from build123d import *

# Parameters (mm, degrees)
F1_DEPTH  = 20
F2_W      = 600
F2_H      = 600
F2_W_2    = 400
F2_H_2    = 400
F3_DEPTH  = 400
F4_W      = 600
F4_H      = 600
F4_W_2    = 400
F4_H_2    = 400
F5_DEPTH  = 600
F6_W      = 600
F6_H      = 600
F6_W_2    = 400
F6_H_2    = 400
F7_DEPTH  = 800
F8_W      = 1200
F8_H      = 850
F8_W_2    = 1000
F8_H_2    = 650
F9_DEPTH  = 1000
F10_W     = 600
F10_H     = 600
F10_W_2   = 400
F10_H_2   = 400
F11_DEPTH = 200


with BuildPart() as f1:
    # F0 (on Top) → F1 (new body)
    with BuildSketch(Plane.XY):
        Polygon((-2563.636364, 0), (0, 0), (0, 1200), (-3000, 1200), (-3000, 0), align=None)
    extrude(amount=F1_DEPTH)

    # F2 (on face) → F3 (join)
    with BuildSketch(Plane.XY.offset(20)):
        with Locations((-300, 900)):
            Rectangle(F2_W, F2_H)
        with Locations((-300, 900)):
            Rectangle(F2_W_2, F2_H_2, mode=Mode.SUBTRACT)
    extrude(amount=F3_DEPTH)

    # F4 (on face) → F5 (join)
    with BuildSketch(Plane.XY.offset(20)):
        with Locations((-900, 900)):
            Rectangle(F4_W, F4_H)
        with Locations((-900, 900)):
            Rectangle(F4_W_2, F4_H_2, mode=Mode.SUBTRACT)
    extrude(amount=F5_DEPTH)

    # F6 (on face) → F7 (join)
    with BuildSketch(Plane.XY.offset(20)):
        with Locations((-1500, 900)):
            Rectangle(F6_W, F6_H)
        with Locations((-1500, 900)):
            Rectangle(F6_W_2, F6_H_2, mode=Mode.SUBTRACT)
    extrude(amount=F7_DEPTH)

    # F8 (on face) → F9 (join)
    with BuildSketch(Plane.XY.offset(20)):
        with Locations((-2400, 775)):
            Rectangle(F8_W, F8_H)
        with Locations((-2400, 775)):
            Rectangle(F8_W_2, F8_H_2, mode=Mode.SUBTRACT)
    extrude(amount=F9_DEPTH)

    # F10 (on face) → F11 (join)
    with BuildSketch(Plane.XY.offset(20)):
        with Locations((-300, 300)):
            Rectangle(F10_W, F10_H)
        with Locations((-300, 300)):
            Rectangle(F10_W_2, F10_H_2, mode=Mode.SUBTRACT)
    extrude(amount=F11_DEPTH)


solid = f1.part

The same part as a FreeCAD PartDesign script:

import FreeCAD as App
import Part
import Sketcher
from FreeCAD import Vector
Q = App.Units.Quantity


def add_polygon(sketch, points):
    """Adds a closed chain of lines whose ends are joined by coincident constraints."""
    first, n = sketch.GeometryCount, len(points)
    for a, b in zip(points, points[1:] + points[:1]):
        sketch.addGeometry(Part.LineSegment(App.Vector(*a, 0), App.Vector(*b, 0)), False)
    for i in range(n):
        sketch.addConstraint(Sketcher.Constraint("Coincident", first + i, 2, first + (i + 1) % n, 1))

doc = App.newDocument("Part")
body = doc.addObject("PartDesign::Body", "Body")

sketch1 = body.newObject("Sketcher::SketchObject", "Sketch")
sketch1.AttachmentSupport = (doc.getObject("XY_Plane"), [""])
sketch1.MapMode = "FlatFace"
add_polygon(sketch1, [(0, 0), (0, 1200), (-3000, 1200), (-3000, 0)])
sketch1.addConstraint([
    Sketcher.Constraint("Vertical", 0),
    Sketcher.Constraint("Horizontal", 1),
    Sketcher.Constraint("Vertical", 2),
    Sketcher.Constraint("Horizontal", 3),
    Sketcher.Constraint("Coincident", 3, 2, -1, 1),
    Sketcher.Constraint("DistanceX", 1, 2, 1, 1, Q("3000 mm")),
    Sketcher.Constraint("DistanceY", 0, 1, 0, 2, Q("1200 mm")),
])
pad1 = body.newObject("PartDesign::Pad", "Pad")
pad1.Profile = sketch1
pad1.Length = 20

sketch2 = body.newObject("Sketcher::SketchObject", "Sketch001")
sketch2.AttachmentSupport = (doc.getObject("XY_Plane"), [""])
sketch2.MapMode = "FlatFace"
sketch2.AttachmentOffset = App.Placement(Vector(0, 0, 20), App.Rotation())
add_polygon(sketch2, [(-600, 1200), (-600, 600), (0, 600), (0, 1200)])
add_polygon(sketch2, [(-100, 700), (-500, 700), (-500, 1100), (-100, 1100)])
sketch2.addConstraint([
    Sketcher.Constraint("Vertical", 0),
    Sketcher.Constraint("Horizontal", 1),
    Sketcher.Constraint("Vertical", 2),
    Sketcher.Constraint("Horizontal", 3),
    Sketcher.Constraint("Horizontal", 4),
    Sketcher.Constraint("Vertical", 5),
    Sketcher.Constraint("Horizontal", 6),
    Sketcher.Constraint("Vertical", 7),
    Sketcher.Constraint("PointOnObject", 1, 2, -2),
    Sketcher.Constraint("Equal", 3, 0),
    Sketcher.Constraint("Equal", 6, 5),
    Sketcher.Constraint("DistanceX", 1, 1, 1, 2, Q("600 mm")),
    Sketcher.Constraint("DistanceX", 4, 2, 4, 1, Q("400 mm")),
    Sketcher.Constraint("DistanceY", -1, 1, 0, 2, Q("600 mm")),
    Sketcher.Constraint("DistanceX", 4, 2, -1, 1, Q("500 mm")),
    Sketcher.Constraint("DistanceY", -1, 1, 4, 2, Q("700 mm")),
])
pad2 = body.newObject("PartDesign::Pad", "Pad001")
pad2.Profile = sketch2
pad2.Length = 400

sketch3 = body.newObject("Sketcher::SketchObject", "Sketch002")
sketch3.AttachmentSupport = (doc.getObject("XY_Plane"), [""])
sketch3.MapMode = "FlatFace"
sketch3.AttachmentOffset = App.Placement(Vector(0, 0, 20), App.Rotation())
add_polygon(sketch3, [(-1200, 1200), (-1200, 600), (-600, 600), (-600, 1200)])
add_polygon(sketch3, [(-700, 700), (-1100, 700), (-1100, 1100), (-700, 1100)])
sketch3.addConstraint([
    Sketcher.Constraint("Vertical", 0),
    Sketcher.Constraint("Horizontal", 1),
    Sketcher.Constraint("Vertical", 2),
    Sketcher.Constraint("Horizontal", 3),
    Sketcher.Constraint("Horizontal", 4),
    Sketcher.Constraint("Vertical", 5),
    Sketcher.Constraint("Horizontal", 6),
    Sketcher.Constraint("Vertical", 7),
    Sketcher.Constraint("Equal", 3, 0),
    Sketcher.Constraint("Equal", 6, 5),
    Sketcher.Constraint("DistanceX", 1, 1, 1, 2, Q("600 mm")),
    Sketcher.Constraint("DistanceX", 4, 2, 4, 1, Q("400 mm")),
    Sketcher.Constraint("DistanceX", 0, 2, -1, 1, Q("1200 mm")),
    Sketcher.Constraint("DistanceY", -1, 1, 0, 2, Q("600 mm")),
    Sketcher.Constraint("DistanceX", 4, 2, -1, 1, Q("1100 mm")),
    Sketcher.Constraint("DistanceY", -1, 1, 4, 2, Q("700 mm")),
])
pad3 = body.newObject("PartDesign::Pad", "Pad002")
pad3.Profile = sketch3
pad3.Length = 600

sketch4 = body.newObject("Sketcher::SketchObject", "Sketch003")
sketch4.AttachmentSupport = (doc.getObject("XY_Plane"), [""])
sketch4.MapMode = "FlatFace"
sketch4.AttachmentOffset = App.Placement(Vector(0, 0, 20), App.Rotation())
add_polygon(sketch4, [(-1800, 1200), (-1800, 600), (-1200, 600), (-1200, 1200)])
add_polygon(sketch4, [(-1300, 700), (-1700, 700), (-1700, 1100), (-1300, 1100)])
sketch4.addConstraint([
    Sketcher.Constraint("Vertical", 0),
    Sketcher.Constraint("Horizontal", 1),
    Sketcher.Constraint("Vertical", 2),
    Sketcher.Constraint("Horizontal", 3),
    Sketcher.Constraint("Horizontal", 4),
    Sketcher.Constraint("Vertical", 5),
    Sketcher.Constraint("Horizontal", 6),
    Sketcher.Constraint("Vertical", 7),
    Sketcher.Constraint("Equal", 3, 0),
    Sketcher.Constraint("Equal", 6, 5),
    Sketcher.Constraint("DistanceX", 1, 1, 1, 2, Q("600 mm")),
    Sketcher.Constraint("DistanceX", 4, 2, 4, 1, Q("400 mm")),
    Sketcher.Constraint("DistanceX", 0, 2, -1, 1, Q("1800 mm")),
    Sketcher.Constraint("DistanceY", -1, 1, 0, 2, Q("600 mm")),
    Sketcher.Constraint("DistanceX", 4, 2, -1, 1, Q("1700 mm")),
    Sketcher.Constraint("DistanceY", -1, 1, 4, 2, Q("700 mm")),
])
pad4 = body.newObject("PartDesign::Pad", "Pad003")
pad4.Profile = sketch4
pad4.Length = 800

sketch5 = body.newObject("Sketcher::SketchObject", "Sketch004")
sketch5.AttachmentSupport = (doc.getObject("XY_Plane"), [""])
sketch5.MapMode = "FlatFace"
sketch5.AttachmentOffset = App.Placement(Vector(0, 0, 20), App.Rotation())
add_polygon(sketch5, [(-3000, 1200), (-3000, 350), (-1800, 350), (-1800, 1200)])
add_polygon(sketch5, [(-1900, 450), (-2900, 450), (-2900, 1100), (-1900, 1100)])
sketch5.addConstraint([
    Sketcher.Constraint("Vertical", 0),
    Sketcher.Constraint("Horizontal", 1),
    Sketcher.Constraint("Vertical", 2),
    Sketcher.Constraint("Horizontal", 3),
    Sketcher.Constraint("Horizontal", 4),
    Sketcher.Constraint("Vertical", 5),
    Sketcher.Constraint("Horizontal", 6),
    Sketcher.Constraint("Vertical", 7),
    Sketcher.Constraint("DistanceX", 1, 1, 1, 2, Q("1200 mm")),
    Sketcher.Constraint("DistanceX", 4, 2, 4, 1, Q("1000 mm")),
    Sketcher.Constraint("DistanceY", 0, 2, 0, 1, Q("850 mm")),
    Sketcher.Constraint("DistanceY", 5, 1, 5, 2, Q("650 mm")),
    Sketcher.Constraint("DistanceX", 0, 2, -1, 1, Q("3000 mm")),
    Sketcher.Constraint("DistanceY", -1, 1, 0, 2, Q("350 mm")),
    Sketcher.Constraint("DistanceX", 4, 2, -1, 1, Q("2900 mm")),
    Sketcher.Constraint("DistanceY", -1, 1, 4, 2, Q("450 mm")),
])
pad5 = body.newObject("PartDesign::Pad", "Pad004")
pad5.Profile = sketch5
pad5.Length = 1000

sketch6 = body.newObject("Sketcher::SketchObject", "Sketch005")
sketch6.AttachmentSupport = (doc.getObject("XY_Plane"), [""])
sketch6.MapMode = "FlatFace"
sketch6.AttachmentOffset = App.Placement(Vector(0, 0, 20), App.Rotation())
add_polygon(sketch6, [(-600, 600), (-600, 0), (0, 0), (0, 600)])
add_polygon(sketch6, [(-100, 100), (-500, 100), (-500, 500), (-100, 500)])
sketch6.addConstraint([
    Sketcher.Constraint("Vertical", 0),
    Sketcher.Constraint("Horizontal", 1),
    Sketcher.Constraint("Vertical", 2),
    Sketcher.Constraint("Horizontal", 3),
    Sketcher.Constraint("Horizontal", 4),
    Sketcher.Constraint("Vertical", 5),
    Sketcher.Constraint("Horizontal", 6),
    Sketcher.Constraint("Vertical", 7),
    Sketcher.Constraint("Coincident", 1, 2, -1, 1),
    Sketcher.Constraint("Equal", 3, 0),
    Sketcher.Constraint("Equal", 6, 5),
    Sketcher.Constraint("DistanceX", 1, 1, 1, 2, Q("600 mm")),
    Sketcher.Constraint("DistanceX", 4, 2, 4, 1, Q("400 mm")),
    Sketcher.Constraint("DistanceX", 4, 2, -1, 1, Q("500 mm")),
    Sketcher.Constraint("DistanceY", -1, 1, 4, 2, Q("100 mm")),
])
pad6 = body.newObject("PartDesign::Pad", "Pad005")
pad6.Profile = sketch6
pad6.Length = 200

doc.recompute()
